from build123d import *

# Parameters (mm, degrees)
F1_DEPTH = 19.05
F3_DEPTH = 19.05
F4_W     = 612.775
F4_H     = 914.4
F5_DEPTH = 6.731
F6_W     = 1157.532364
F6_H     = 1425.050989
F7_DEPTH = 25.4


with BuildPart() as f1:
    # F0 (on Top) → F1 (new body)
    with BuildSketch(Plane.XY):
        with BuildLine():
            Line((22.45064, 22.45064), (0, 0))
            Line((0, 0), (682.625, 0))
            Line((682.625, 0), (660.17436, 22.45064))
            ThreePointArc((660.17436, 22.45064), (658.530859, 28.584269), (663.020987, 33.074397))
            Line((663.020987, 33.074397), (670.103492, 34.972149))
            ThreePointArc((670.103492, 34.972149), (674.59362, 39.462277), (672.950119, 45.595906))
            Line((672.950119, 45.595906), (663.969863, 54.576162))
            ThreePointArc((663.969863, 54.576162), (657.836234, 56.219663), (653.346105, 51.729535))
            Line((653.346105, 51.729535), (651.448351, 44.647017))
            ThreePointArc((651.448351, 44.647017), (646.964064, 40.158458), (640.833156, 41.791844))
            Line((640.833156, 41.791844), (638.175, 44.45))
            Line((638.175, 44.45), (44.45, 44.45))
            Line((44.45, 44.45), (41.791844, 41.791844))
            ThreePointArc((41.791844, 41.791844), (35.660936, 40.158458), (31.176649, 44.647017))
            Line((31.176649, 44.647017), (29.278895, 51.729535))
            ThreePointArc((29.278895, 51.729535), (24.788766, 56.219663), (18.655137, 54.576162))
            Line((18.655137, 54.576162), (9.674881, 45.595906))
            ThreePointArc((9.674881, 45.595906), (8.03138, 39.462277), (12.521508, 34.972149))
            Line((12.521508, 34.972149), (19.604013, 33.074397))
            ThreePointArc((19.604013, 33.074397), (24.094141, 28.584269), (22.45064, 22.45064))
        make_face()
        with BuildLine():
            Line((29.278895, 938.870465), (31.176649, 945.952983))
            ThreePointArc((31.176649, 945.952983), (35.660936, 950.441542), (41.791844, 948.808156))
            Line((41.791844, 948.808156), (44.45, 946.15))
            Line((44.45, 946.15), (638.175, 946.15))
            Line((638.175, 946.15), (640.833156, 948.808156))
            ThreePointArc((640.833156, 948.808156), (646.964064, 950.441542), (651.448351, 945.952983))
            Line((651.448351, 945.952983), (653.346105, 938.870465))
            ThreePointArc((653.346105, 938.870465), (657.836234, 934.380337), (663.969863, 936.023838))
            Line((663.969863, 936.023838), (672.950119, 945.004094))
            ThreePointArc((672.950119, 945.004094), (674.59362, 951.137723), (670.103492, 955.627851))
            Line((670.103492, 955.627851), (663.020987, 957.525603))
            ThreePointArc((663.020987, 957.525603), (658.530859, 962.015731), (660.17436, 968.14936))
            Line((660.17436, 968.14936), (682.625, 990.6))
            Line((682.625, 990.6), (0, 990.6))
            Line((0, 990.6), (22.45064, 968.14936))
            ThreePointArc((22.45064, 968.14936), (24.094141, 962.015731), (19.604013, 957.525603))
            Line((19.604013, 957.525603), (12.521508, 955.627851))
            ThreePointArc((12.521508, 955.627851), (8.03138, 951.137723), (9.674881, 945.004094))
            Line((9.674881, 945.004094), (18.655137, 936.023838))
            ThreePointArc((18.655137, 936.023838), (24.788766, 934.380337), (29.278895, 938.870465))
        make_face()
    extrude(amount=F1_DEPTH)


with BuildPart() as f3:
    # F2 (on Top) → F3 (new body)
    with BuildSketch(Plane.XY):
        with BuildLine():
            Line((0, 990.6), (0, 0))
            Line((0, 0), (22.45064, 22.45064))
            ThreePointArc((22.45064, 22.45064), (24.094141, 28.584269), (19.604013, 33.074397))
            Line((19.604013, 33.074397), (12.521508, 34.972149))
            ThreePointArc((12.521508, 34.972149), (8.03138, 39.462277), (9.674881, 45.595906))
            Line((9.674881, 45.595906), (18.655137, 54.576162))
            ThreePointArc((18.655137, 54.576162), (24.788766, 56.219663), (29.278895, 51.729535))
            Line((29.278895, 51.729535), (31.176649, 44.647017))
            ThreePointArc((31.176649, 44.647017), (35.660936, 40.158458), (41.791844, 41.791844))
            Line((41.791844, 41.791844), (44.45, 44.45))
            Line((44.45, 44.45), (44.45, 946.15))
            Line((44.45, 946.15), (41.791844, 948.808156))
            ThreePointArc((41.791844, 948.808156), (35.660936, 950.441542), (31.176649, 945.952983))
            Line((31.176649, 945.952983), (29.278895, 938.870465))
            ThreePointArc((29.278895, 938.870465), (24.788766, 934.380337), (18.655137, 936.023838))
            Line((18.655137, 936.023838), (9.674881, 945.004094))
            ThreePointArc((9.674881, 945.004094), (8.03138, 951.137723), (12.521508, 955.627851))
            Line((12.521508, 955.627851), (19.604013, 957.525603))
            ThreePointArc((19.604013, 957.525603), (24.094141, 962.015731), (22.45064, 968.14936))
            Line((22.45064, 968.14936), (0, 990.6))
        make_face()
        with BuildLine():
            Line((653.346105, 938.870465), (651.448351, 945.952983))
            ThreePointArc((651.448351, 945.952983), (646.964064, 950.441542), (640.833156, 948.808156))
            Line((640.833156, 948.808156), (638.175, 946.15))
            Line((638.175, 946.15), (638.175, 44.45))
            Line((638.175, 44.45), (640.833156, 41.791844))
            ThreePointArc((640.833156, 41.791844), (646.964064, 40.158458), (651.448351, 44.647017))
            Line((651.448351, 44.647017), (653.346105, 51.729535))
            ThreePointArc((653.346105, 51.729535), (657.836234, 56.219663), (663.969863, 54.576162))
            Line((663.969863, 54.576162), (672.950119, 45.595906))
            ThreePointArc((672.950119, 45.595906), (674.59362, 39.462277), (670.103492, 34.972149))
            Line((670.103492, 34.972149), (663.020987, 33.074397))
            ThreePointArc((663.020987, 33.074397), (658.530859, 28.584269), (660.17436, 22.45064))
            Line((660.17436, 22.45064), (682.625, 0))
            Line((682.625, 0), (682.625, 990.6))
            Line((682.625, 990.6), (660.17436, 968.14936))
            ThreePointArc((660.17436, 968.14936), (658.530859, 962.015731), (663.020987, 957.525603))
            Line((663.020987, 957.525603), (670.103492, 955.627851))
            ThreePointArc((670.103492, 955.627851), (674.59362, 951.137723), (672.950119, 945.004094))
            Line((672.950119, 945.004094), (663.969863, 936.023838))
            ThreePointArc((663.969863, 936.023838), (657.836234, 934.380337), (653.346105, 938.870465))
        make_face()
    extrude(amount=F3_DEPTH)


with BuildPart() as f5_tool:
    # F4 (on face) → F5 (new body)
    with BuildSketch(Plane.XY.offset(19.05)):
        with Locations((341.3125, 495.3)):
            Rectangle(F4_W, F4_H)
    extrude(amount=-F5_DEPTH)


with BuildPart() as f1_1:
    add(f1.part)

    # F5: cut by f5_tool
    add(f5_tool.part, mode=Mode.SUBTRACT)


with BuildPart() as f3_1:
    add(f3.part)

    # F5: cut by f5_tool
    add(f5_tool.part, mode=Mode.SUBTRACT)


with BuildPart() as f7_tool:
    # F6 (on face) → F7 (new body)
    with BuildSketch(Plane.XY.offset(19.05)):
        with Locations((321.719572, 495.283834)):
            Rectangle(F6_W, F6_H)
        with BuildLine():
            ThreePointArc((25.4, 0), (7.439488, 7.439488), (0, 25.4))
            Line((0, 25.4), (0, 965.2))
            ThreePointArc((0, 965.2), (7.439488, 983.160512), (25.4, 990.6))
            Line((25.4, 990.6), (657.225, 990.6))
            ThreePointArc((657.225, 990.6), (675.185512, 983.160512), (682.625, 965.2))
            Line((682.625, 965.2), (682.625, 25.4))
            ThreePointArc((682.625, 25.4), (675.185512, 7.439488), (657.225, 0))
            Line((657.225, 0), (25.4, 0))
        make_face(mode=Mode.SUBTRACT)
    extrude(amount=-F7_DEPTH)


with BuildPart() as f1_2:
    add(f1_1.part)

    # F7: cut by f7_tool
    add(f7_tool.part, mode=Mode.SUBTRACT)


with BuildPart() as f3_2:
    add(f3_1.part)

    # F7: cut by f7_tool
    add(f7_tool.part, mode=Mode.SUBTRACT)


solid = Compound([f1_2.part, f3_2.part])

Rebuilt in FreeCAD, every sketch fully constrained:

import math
import FreeCAD as App
import Part
import Sketcher
Q = App.Units.Quantity


def add_polygon(sketch, points):
    """Adds a closed chain of lines whose ends are joined by coincident constraints."""
    first, n = sketch.GeometryCount, len(points)
    for a, b in zip(points, points[1:] + points[:1]):
        sketch.addGeometry(Part.LineSegment(App.Vector(*a, 0), App.Vector(*b, 0)), False)
    for i in range(n):
        sketch.addConstraint(Sketcher.Constraint("Coincident", first + i, 2, first + (i + 1) % n, 1))

doc = App.newDocument("Part")
body = doc.addObject("PartDesign::Body", "Body")
body.AllowCompound = True

# Sketch on XY plane
sketch1 = doc.addObject("Sketcher::SketchObject", "Sketch")
body.addObject(sketch1)
sketch1.AttachmentSupport = (doc.XY_Plane, [""])
sketch1.MapMode = "FlatFace"
sketch1.addGeometry([
    Part.LineSegment(App.Vector(22.5, 22.5, 0), App.Vector(0, 0, 0)),  # 0
    Part.LineSegment(App.Vector(0, 0, 0), App.Vector(682.6, 0, 0)),  # 1
    Part.LineSegment(App.Vector(682.6, 0, 0), App.Vector(660.2, 22.5, 0)),  # 2
    Part.ArcOfCircle(Part.Circle(App.Vector(664.7, 26.9, 0), App.Vector(0, 0, 1), 6.3), math.radians(105), math.radians(225)),  # 3
    Part.LineSegment(App.Vector(663, 33.1, 0), App.Vector(670.1, 35, 0)),  # 4
    Part.ArcOfCircle(Part.Circle(App.Vector(668.5, 41.1, 0), App.Vector(0, 0, 1), 6.3), math.radians(-75), math.radians(45)),  # 5
    Part.LineSegment(App.Vector(673, 45.6, 0), App.Vector(664, 54.6, 0)),  # 6
    Part.ArcOfCircle(Part.Circle(App.Vector(659.5, 50.1, 0), App.Vector(0, 0, 1), 6.4), math.radians(45), math.radians(165)),  # 7
    Part.LineSegment(App.Vector(653.3, 51.7, 0), App.Vector(651.4, 44.6, 0)),  # 8
    Part.ArcOfCircle(Part.Circle(App.Vector(645.3, 46.3, 0), App.Vector(0, 0, 1), 6.4), math.radians(-135), math.radians(-15)),  # 9
    Part.LineSegment(App.Vector(640.8, 41.8, 0), App.Vector(638.2, 44.5, 0)),  # 10
    Part.LineSegment(App.Vector(638.2, 44.5, 0), App.Vector(44.5, 44.5, 0)),  # 11
    Part.LineSegment(App.Vector(44.5, 44.5, 0), App.Vector(41.8, 41.8, 0)),  # 12
    Part.ArcOfCircle(Part.Circle(App.Vector(37.3, 46.3, 0), App.Vector(0, 0, 1), 6.4), math.radians(-165), math.radians(-45)),  # 13
    Part.LineSegment(App.Vector(31.2, 44.6, 0), App.Vector(29.3, 51.7, 0)),  # 14
    Part.ArcOfCircle(Part.Circle(App.Vector(23.1, 50.1, 0), App.Vector(0, 0, 1), 6.4), math.radians(15), math.radians(135)),  # 15
    Part.LineSegment(App.Vector(18.7, 54.6, 0), App.Vector(9.7, 45.6, 0)),  # 16
    Part.ArcOfCircle(Part.Circle(App.Vector(14.2, 41.1, 0), App.Vector(0, 0, 1), 6.3), math.radians(135), math.radians(255)),  # 17
    Part.LineSegment(App.Vector(12.5, 35, 0), App.Vector(19.6, 33.1, 0)),  # 18
    Part.ArcOfCircle(Part.Circle(App.Vector(18, 26.9, 0), App.Vector(0, 0, 1), 6.3), math.radians(-45), math.radians(75)),  # 19
    Part.LineSegment(App.Vector(29.3, 938.9, 0), App.Vector(31.2, 946, 0)),  # 20
    Part.ArcOfCircle(Part.Circle(App.Vector(37.3, 944.3, 0), App.Vector(0, 0, 1), 6.4), math.radians(45), math.radians(165)),  # 21
    Part.LineSegment(App.Vector(41.8, 948.8, 0), App.Vector(44.5, 946.1, 0)),  # 22
    Part.LineSegment(App.Vector(44.5, 946.1, 0), App.Vector(638.2, 946.1, 0)),  # 23
    Part.LineSegment(App.Vector(638.2, 946.1, 0), App.Vector(640.8, 948.8, 0)),  # 24
    Part.ArcOfCircle(Part.Circle(App.Vector(645.3, 944.3, 0), App.Vector(0, 0, 1), 6.4), math.radians(15), math.radians(135)),  # 25
    Part.LineSegment(App.Vector(651.4, 946, 0), App.Vector(653.3, 938.9, 0)),  # 26
    Part.ArcOfCircle(Part.Circle(App.Vector(659.5, 940.5, 0), App.Vector(0, 0, 1), 6.4), math.radians(-165), math.radians(-45)),  # 27
    Part.LineSegment(App.Vector(664, 936, 0), App.Vector(673, 945, 0)),  # 28
    Part.ArcOfCircle(Part.Circle(App.Vector(668.5, 949.5, 0), App.Vector(0, 0, 1), 6.3), math.radians(-45), math.radians(75)),  # 29
    Part.LineSegment(App.Vector(670.1, 955.6, 0), App.Vector(663, 957.5, 0)),  # 30
    Part.ArcOfCircle(Part.Circle(App.Vector(664.7, 963.7, 0), App.Vector(0, 0, 1), 6.3), math.radians(135), math.radians(255)),  # 31
    Part.LineSegment(App.Vector(660.2, 968.1, 0), App.Vector(682.6, 990.6, 0)),  # 32
    Part.LineSegment(App.Vector(682.6, 990.6, 0), App.Vector(0, 990.6, 0)),  # 33
    Part.LineSegment(App.Vector(0, 990.6, 0), App.Vector(22.5, 968.1, 0)),  # 34
    Part.ArcOfCircle(Part.Circle(App.Vector(18, 963.7, 0), App.Vector(0, 0, 1), 6.3), math.radians(-75), math.radians(45)),  # 35
    Part.LineSegment(App.Vector(19.6, 957.5, 0), App.Vector(12.5, 955.6, 0)),  # 36
    Part.ArcOfCircle(Part.Circle(App.Vector(14.2, 949.5, 0), App.Vector(0, 0, 1), 6.3), math.radians(105), math.radians(225)),  # 37
    Part.LineSegment(App.Vector(9.7, 945, 0), App.Vector(18.7, 936, 0)),  # 38
    Part.ArcOfCircle(Part.Circle(App.Vector(23.1, 940.5, 0), App.Vector(0, 0, 1), 6.4), math.radians(-135), math.radians(-15)),  # 39
], False)
sketch1.addConstraint([
    Sketcher.Constraint("Coincident", 0, 2, 1, 1),
    Sketcher.Constraint("Coincident", 1, 2, 2, 1),
    Sketcher.Constraint("Tangent", 2, 2, 3, 2),
    Sketcher.Constraint("Tangent", 3, 1, 4, 1),
    Sketcher.Constraint("Tangent", 4, 2, 5, 1),
    Sketcher.Constraint("Tangent", 5, 2, 6, 1),
    Sketcher.Constraint("Tangent", 6, 2, 7, 1),
    Sketcher.Constraint("Tangent", 7, 2, 8, 1),
    Sketcher.Constraint("Tangent", 8, 2, 9, 2),
    Sketcher.Constraint("Coincident", 9, 1, 10, 1),
    Sketcher.Constraint("Coincident", 10, 2, 11, 1),
    Sketcher.Constraint("Coincident", 11, 2, 12, 1),
    Sketcher.Constraint("Coincident", 12, 2, 13, 2),
    Sketcher.Constraint("Tangent", 13, 1, 14, 1),
    Sketcher.Constraint("Tangent", 14, 2, 15, 1),
    Sketcher.Constraint("Tangent", 15, 2, 16, 1),
    Sketcher.Constraint("Tangent", 16, 2, 17, 1),
    Sketcher.Constraint("Tangent", 17, 2, 18, 1),
    Sketcher.Constraint("Tangent", 18, 2, 19, 2),
    Sketcher.Constraint("Tangent", 19, 1, 0, 1),
    Sketcher.Constraint("Tangent", 20, 2, 21, 2),
    Sketcher.Constraint("Coincident", 21, 1, 22, 1),
    Sketcher.Constraint("Coincident", 22, 2, 23, 1),
    Sketcher.Constraint("Coincident", 23, 2, 24, 1),
    Sketcher.Constraint("Coincident", 24, 2, 25, 2),
    Sketcher.Constraint("Tangent", 25, 1, 26, 1),
    Sketcher.Constraint("Tangent", 26, 2, 27, 1),
    Sketcher.Constraint("Tangent", 27, 2, 28, 1),
    Sketcher.Constraint("Tangent", 28, 2, 29, 1),
    Sketcher.Constraint("Tangent", 29, 2, 30, 1),
    Sketcher.Constraint("Tangent", 30, 2, 31, 2),
    Sketcher.Constraint("Tangent", 31, 1, 32, 1),
    Sketcher.Constraint("Coincident", 32, 2, 33, 1),
    Sketcher.Constraint("Coincident", 33, 2, 34, 1),
    Sketcher.Constraint("Tangent", 34, 2, 35, 2),
    Sketcher.Constraint("Tangent", 35, 1, 36, 1),
    Sketcher.Constraint("Tangent", 36, 2, 37, 1),
    Sketcher.Constraint("Tangent", 37, 2, 38, 1),
    Sketcher.Constraint("Tangent", 38, 2, 39, 1),
    Sketcher.Constraint("Tangent", 39, 2, 20, 1),
    Sketcher.Constraint("Horizontal", 1),
    Sketcher.Constraint("Horizontal", 11),
    Sketcher.Constraint("Horizontal", 23),
    Sketcher.Constraint("Horizontal", 33),
    Sketcher.Constraint("Coincident", 0, 2, -1, 1),
    Sketcher.Constraint("Equal", 3, 5),
    Sketcher.Constraint("Equal", 5, 7),
    Sketcher.Constraint("Equal", 7, 9),
    Sketcher.Constraint("Equal", 9, 13),
    Sketcher.Constraint("Equal", 13, 15),
    Sketcher.Constraint("Equal", 15, 17),
    Sketcher.Constraint("Equal", 17, 19),
    Sketcher.Constraint("Equal", 19, 21),
    Sketcher.Constraint("Equal", 21, 25),
    Sketcher.Constraint("Equal", 25, 27),
    Sketcher.Constraint("Equal", 27, 29),
    Sketcher.Constraint("Equal", 29, 31),
    Sketcher.Constraint("Equal", 31, 35),
    Sketcher.Constraint("Equal", 35, 37),
    Sketcher.Constraint("Equal", 37, 39),
    Sketcher.Constraint("PointOnObject", 33, 2, -2),
    Sketcher.Constraint("Perpendicular", 0, 2),
    Sketcher.Constraint("Parallel", 2, 6),
    Sketcher.Constraint("Parallel", 6, 10),
    Sketcher.Constraint("Perpendicular", 10, 12),
    Sketcher.Constraint("Perpendicular", 4, 14),
    Sketcher.Constraint("Parallel", 12, 16),
    Sketcher.Constraint("Perpendicular", 8, 18),
    Sketcher.Constraint("Perpendicular", 18, 20),
    Sketcher.Constraint("Perpendicular", 16, 22),
    Sketcher.Constraint("Perpendicular", 22, 24),
    Sketcher.Constraint("Parallel", 14, 26),
    Sketcher.Constraint("Parallel", 24, 28),
    Sketcher.Constraint("Perpendicular", 20, 30),
    Sketcher.Constraint("Parallel", 28, 32),
    Sketcher.Constraint("Perpendicular", 32, 34),
    Sketcher.Constraint("Perpendicular", 26, 36),
    Sketcher.Constraint("Parallel", 34, 38),
    Sketcher.Constraint("Horizontal", 9, 3, 13, 3),
    Sketcher.Constraint("Horizontal", 7, 3, 15, 3),
    Sketcher.Constraint("Horizontal", 5, 3, 17, 3),
    Sketcher.Constraint("Horizontal", 3, 3, 19, 3),
    Sketcher.Constraint("Horizontal", 21, 3, 25, 3),
    Sketcher.Constraint("Horizontal", 31, 3, 35, 3),
    Sketcher.Constraint("Horizontal", 29, 3, 37, 3),
    Sketcher.Constraint("Horizontal", 27, 3, 39, 3),
    Sketcher.Constraint("Horizontal", 9, 1, 12, 2),
    Sketcher.Constraint("Horizontal", 8, 2, 13, 1),
    Sketcher.Constraint("Horizontal", 6, 2, 15, 2),
    Sketcher.Constraint("Horizontal", 21, 1, 24, 2),
    Sketcher.Constraint("Vertical", 13, 3, 21, 3),
    Sketcher.Constraint("Vertical", 9, 3, 25, 3),
    Sketcher.Constraint("Vertical", 7, 3, 27, 3),
    Sketcher.Constraint("Vertical", 5, 3, 29, 3),
    Sketcher.Constraint("Vertical", 3, 3, 31, 3),
    Sketcher.Constraint("Vertical", 12, 2, 21, 1),
    Sketcher.Constraint("Vertical", 11, 2, 22, 2),
    Sketcher.Constraint("Radius", 3, Q("0.25 in")),
    Sketcher.Constraint("DistanceY", -1, 1, 32, 2, Q("39 in")),
    Sketcher.Constraint("Angle", 4, Q("15.000004 deg")),
    Sketcher.Constraint("Distance", 6, Q("0.5 in")),
    Sketcher.Constraint("Distance", 0, Q("1.25 in")),
    Sketcher.Constraint("DistanceX", 1, 1, 1, 2, Q("26.875 in")),
    Sketcher.Constraint("DistanceX", 11, 2, 11, 1, Q("23.375 in")),
    Sketcher.Constraint("DistanceY", -1, 1, 10, 2, Q("1.75 in")),
    Sketcher.Constraint("Distance", 10, Q("0.148 in")),
    Sketcher.Constraint("DistanceY", 7, 3, 31, 3, Q("913.573199 mm")),
])
pad1 = doc.addObject("PartDesign::Pad", "Pad")
body.addObject(pad1)
pad1.Profile = sketch1
pad1.Length = Q("0.75 in")
body2 = doc.addObject("PartDesign::Body", "Body001")
body2.AllowCompound = True

# Sketch on XY plane
sketch2 = doc.addObject("Sketcher::SketchObject", "Sketch001")
body2.addObject(sketch2)
sketch2.AttachmentSupport = (doc.getObject("XY_Plane001"), [""])
sketch2.MapMode = "FlatFace"
sketch2.addGeometry([
    Part.LineSegment(App.Vector(0, 990.6, 0), App.Vector(0, 0, 0)),  # 0
    Part.LineSegment(App.Vector(0, 0, 0), App.Vector(22.5, 22.5, 0)),  # 1
    Part.ArcOfCircle(Part.Circle(App.Vector(18, 26.9, 0), App.Vector(0, 0, 1), 6.3), math.radians(-45), math.radians(75)),  # 2
    Part.LineSegment(App.Vector(19.6, 33.1, 0), App.Vector(12.5, 35, 0)),  # 3
    Part.ArcOfCircle(Part.Circle(App.Vector(14.2, 41.1, 0), App.Vector(0, 0, 1), 6.3), math.radians(135), math.radians(255)),  # 4
    Part.LineSegment(App.Vector(9.7, 45.6, 0), App.Vector(18.7, 54.6, 0)),  # 5
    Part.ArcOfCircle(Part.Circle(App.Vector(23.1, 50.1, 0), App.Vector(0, 0, 1), 6.4), math.radians(15), math.radians(135)),  # 6
    Part.LineSegment(App.Vector(29.3, 51.7, 0), App.Vector(31.2, 44.6, 0)),  # 7
    Part.ArcOfCircle(Part.Circle(App.Vector(37.3, 46.3, 0), App.Vector(0, 0, 1), 6.4), math.radians(-165), math.radians(-45)),  # 8
    Part.LineSegment(App.Vector(41.8, 41.8, 0), App.Vector(44.5, 44.5, 0)),  # 9
    Part.LineSegment(App.Vector(44.5, 44.5, 0), App.Vector(44.5, 946.1, 0)),  # 10
    Part.LineSegment(App.Vector(44.5, 946.1, 0), App.Vector(41.8, 948.8, 0)),  # 11
    Part.ArcOfCircle(Part.Circle(App.Vector(37.3, 944.3, 0), App.Vector(0, 0, 1), 6.4), math.radians(45), math.radians(165)),  # 12
    Part.LineSegment(App.Vector(31.2, 946, 0), App.Vector(29.3, 938.9, 0)),  # 13
    Part.ArcOfCircle(Part.Circle(App.Vector(23.1, 940.5, 0), App.Vector(0, 0, 1), 6.4), math.radians(-135), math.radians(-15)),  # 14
    Part.LineSegment(App.Vector(18.7, 936, 0), App.Vector(9.7, 945, 0)),  # 15
    Part.ArcOfCircle(Part.Circle(App.Vector(14.2, 949.5, 0), App.Vector(0, 0, 1), 6.3), math.radians(105), math.radians(225)),  # 16
    Part.LineSegment(App.Vector(12.5, 955.6, 0), App.Vector(19.6, 957.5, 0)),  # 17
    Part.ArcOfCircle(Part.Circle(App.Vector(18, 963.7, 0), App.Vector(0, 0, 1), 6.3), math.radians(-75), math.radians(45)),  # 18
    Part.LineSegment(App.Vector(22.5, 968.1, 0), App.Vector(0, 990.6, 0)),  # 19
    Part.LineSegment(App.Vector(653.3, 938.9, 0), App.Vector(651.4, 946, 0)),  # 20
    Part.ArcOfCircle(Part.Circle(App.Vector(645.3, 944.3, 0), App.Vector(0, 0, 1), 6.4), math.radians(15), math.radians(135)),  # 21
    Part.LineSegment(App.Vector(640.8, 948.8, 0), App.Vector(638.2, 946.1, 0)),  # 22
    Part.LineSegment(App.Vector(638.2, 946.1, 0), App.Vector(638.2, 44.5, 0)),  # 23
    Part.LineSegment(App.Vector(638.2, 44.5, 0), App.Vector(640.8, 41.8, 0)),  # 24
    Part.ArcOfCircle(Part.Circle(App.Vector(645.3, 46.3, 0), App.Vector(0, 0, 1), 6.4), math.radians(-135), math.radians(-15)),  # 25
    Part.LineSegment(App.Vector(651.4, 44.6, 0), App.Vector(653.3, 51.7, 0)),  # 26
    Part.ArcOfCircle(Part.Circle(App.Vector(659.5, 50.1, 0), App.Vector(0, 0, 1), 6.4), math.radians(45), math.radians(165)),  # 27
    Part.LineSegment(App.Vector(664, 54.6, 0), App.Vector(673, 45.6, 0)),  # 28
    Part.ArcOfCircle(Part.Circle(App.Vector(668.5, 41.1, 0), App.Vector(0, 0, 1), 6.3), math.radians(-75), math.radians(45)),  # 29
    Part.LineSegment(App.Vector(670.1, 35, 0), App.Vector(663, 33.1, 0)),  # 30
    Part.ArcOfCircle(Part.Circle(App.Vector(664.7, 26.9, 0), App.Vector(0, 0, 1), 6.3), math.radians(105), math.radians(225)),  # 31
    Part.LineSegment(App.Vector(660.2, 22.5, 0), App.Vector(682.6, 0, 0)),  # 32
    Part.LineSegment(App.Vector(682.6, 0, 0), App.Vector(682.6, 990.6, 0)),  # 33
    Part.LineSegment(App.Vector(682.6, 990.6, 0), App.Vector(660.2, 968.1, 0)),  # 34
    Part.ArcOfCircle(Part.Circle(App.Vector(664.7, 963.7, 0), App.Vector(0, 0, 1), 6.3), math.radians(135), math.radians(255)),  # 35
    Part.LineSegment(App.Vector(663, 957.5, 0), App.Vector(670.1, 955.6, 0)),  # 36
    Part.ArcOfCircle(Part.Circle(App.Vector(668.5, 949.5, 0), App.Vector(0, 0, 1), 6.3), math.radians(-45), math.radians(75)),  # 37
    Part.LineSegment(App.Vector(673, 945, 0), App.Vector(664, 936, 0)),  # 38
    Part.ArcOfCircle(Part.Circle(App.Vector(659.5, 940.5, 0), App.Vector(0, 0, 1), 6.4), math.radians(-165), math.radians(-45)),  # 39
], False)
sketch2.addConstraint([
    Sketcher.Constraint("Coincident", 0, 2, 1, 1),
    Sketcher.Constraint("Tangent", 1, 2, 2, 1),
    Sketcher.Constraint("Tangent", 2, 2, 3, 1),
    Sketcher.Constraint("Tangent", 3, 2, 4, 2),
    Sketcher.Constraint("Tangent", 4, 1, 5, 1),
    Sketcher.Constraint("Tangent", 5, 2, 6, 2),
    Sketcher.Constraint("Tangent", 6, 1, 7, 1),
    Sketcher.Constraint("Tangent", 7, 2, 8, 1),
    Sketcher.Constraint("Coincident", 8, 2, 9, 1),
    Sketcher.Constraint("Coincident", 9, 2, 10, 1),
    Sketcher.Constraint("Coincident", 10, 2, 11, 1),
    Sketcher.Constraint("Coincident", 11, 2, 12, 1),
    Sketcher.Constraint("Tangent", 12, 2, 13, 1),
    Sketcher.Constraint("Tangent", 13, 2, 14, 2),
    Sketcher.Constraint("Tangent", 14, 1, 15, 1),
    Sketcher.Constraint("Tangent", 15, 2, 16, 2),
    Sketcher.Constraint("Tangent", 16, 1, 17, 1),
    Sketcher.Constraint("Tangent", 17, 2, 18, 1),
    Sketcher.Constraint("Tangent", 18, 2, 19, 1),
    Sketcher.Constraint("Coincident", 19, 2, 0, 1),
    Sketcher.Constraint("Tangent", 20, 2, 21, 1),
    Sketcher.Constraint("Coincident", 21, 2, 22, 1),
    Sketcher.Constraint("Coincident", 22, 2, 23, 1),
    Sketcher.Constraint("Coincident", 23, 2, 24, 1),
    Sketcher.Constraint("Coincident", 24, 2, 25, 1),
    Sketcher.Constraint("Tangent", 25, 2, 26, 1),
    Sketcher.Constraint("Tangent", 26, 2, 27, 2),
    Sketcher.Constraint("Tangent", 27, 1, 28, 1),
    Sketcher.Constraint("Tangent", 28, 2, 29, 2),
    Sketcher.Constraint("Tangent", 29, 1, 30, 1),
    Sketcher.Constraint("Tangent", 30, 2, 31, 1),
    Sketcher.Constraint("Tangent", 31, 2, 32, 1),
    Sketcher.Constraint("Coincident", 32, 2, 33, 1),
    Sketcher.Constraint("Coincident", 33, 2, 34, 1),
    Sketcher.Constraint("Tangent", 34, 2, 35, 1),
    Sketcher.Constraint("Tangent", 35, 2, 36, 1),
    Sketcher.Constraint("Tangent", 36, 2, 37, 2),
    Sketcher.Constraint("Tangent", 37, 1, 38, 1),
    Sketcher.Constraint("Tangent", 38, 2, 39, 2),
    Sketcher.Constraint("Tangent", 39, 1, 20, 1),
    Sketcher.Constraint("Vertical", 0),
    Sketcher.Constraint("Vertical", 10),
    Sketcher.Constraint("Vertical", 23),
    Sketcher.Constraint("Vertical", 33),
    Sketcher.Constraint("Coincident", 0, 2, -1, 1),
    Sketcher.Constraint("Equal", 2, 4),
    Sketcher.Constraint("Equal", 4, 6),
    Sketcher.Constraint("Equal", 6, 8),
    Sketcher.Constraint("Equal", 8, 12),
    Sketcher.Constraint("Equal", 12, 14),
    Sketcher.Constraint("Equal", 14, 16),
    Sketcher.Constraint("Equal", 16, 18),
    Sketcher.Constraint("Equal", 18, 21),
    Sketcher.Constraint("Equal", 21, 25),
    Sketcher.Constraint("Equal", 25, 27),
    Sketcher.Constraint("Equal", 27, 29),
    Sketcher.Constraint("Equal", 29, 31),
    Sketcher.Constraint("Equal", 31, 35),
    Sketcher.Constraint("Equal", 35, 37),
    Sketcher.Constraint("Equal", 37, 39),
    Sketcher.Constraint("PointOnObject", 32, 2, -1),
    Sketcher.Constraint("Parallel", 1, 5),
    Sketcher.Constraint("Parallel", 5, 9),
    Sketcher.Constraint("Perpendicular", 9, 11),
    Sketcher.Constraint("Perpendicular", 3, 13),
    Sketcher.Constraint("Parallel", 11, 15),
    Sketcher.Constraint("Perpendicular", 7, 17),
    Sketcher.Constraint("Parallel", 15, 19),
    Sketcher.Constraint("Perpendicular", 17, 20),
    Sketcher.Constraint("Perpendicular", 19, 22),
    Sketcher.Constraint("Perpendicular", 22, 24),
    Sketcher.Constraint("Parallel", 13, 26),
    Sketcher.Constraint("Parallel", 24, 28),
    Sketcher.Constraint("Perpendicular", 20, 30),
    Sketcher.Constraint("Parallel", 28, 32),
    Sketcher.Constraint("Perpendicular", 32, 34),
    Sketcher.Constraint("Perpendicular", 26, 36),
    Sketcher.Constraint("Parallel", 34, 38),
    Sketcher.Constraint("Horizontal", 12, 3, 21, 3),
    Sketcher.Constraint("Horizontal", 8, 3, 25, 3),
    Sketcher.Constraint("Horizontal", 6, 3, 27, 3),
    Sketcher.Constraint("Horizontal", 4, 3, 29, 3),
    Sketcher.Constraint("Horizontal", 2, 3, 31, 3),
    Sketcher.Constraint("Horizontal", 18, 3, 35, 3),
    Sketcher.Constraint("Horizontal", 16, 3, 37, 3),
    Sketcher.Constraint("Horizontal", 14, 3, 39, 3),
    Sketcher.Constraint("Horizontal", 12, 2, 20, 2),
    Sketcher.Constraint("Horizontal", 11, 2, 21, 2),
    Sketcher.Constraint("Horizontal", 10, 2, 22, 2),
    Sketcher.Constraint("Horizontal", 9, 2, 23, 2),
    Sketcher.Constraint("Horizontal", 8, 2, 24, 2),
    Sketcher.Constraint("Horizontal", 5, 2, 27, 1),
    Sketcher.Constraint("Vertical", 8, 3, 12, 3),
    Sketcher.Constraint("Vertical", 6, 3, 14, 3),
    Sketcher.Constraint("Vertical", 4, 3, 16, 3),
    Sketcher.Constraint("Vertical", 2, 3, 18, 3),
    Sketcher.Constraint("Vertical", 8, 2, 11, 2),
    Sketcher.Constraint("DistanceY", 0, 2, 0, 1, Q("39 in")),
    Sketcher.Constraint("Radius", 2, Q("0.25 in")),
    Sketcher.Constraint("DistanceY", 10, 1, 10, 2, Q("35.5 in")),
    Sketcher.Constraint("Angle", 3, Q("164.999996 deg")),
    Sketcher.Constraint("Distance", 5, Q("0.5 in")),
    Sketcher.Constraint("Distance", 1, Q("1.25 in")),
    Sketcher.Constraint("DistanceX", -1, 1, 9, 2, Q("1.75 in")),
    Sketcher.Constraint("Distance", 9, Q("0.148 in")),
    Sketcher.Constraint("DistanceX", -1, 1, 22, 2, Q("25.125 in")),
    Sketcher.Constraint("DistanceY", 2, 3, 14, 3, Q("913.573199 mm")),
])
pad2 = doc.addObject("PartDesign::Pad", "Pad001")
body2.addObject(pad2)
pad2.Profile = sketch2
pad2.Length = Q("0.75 in")
body3 = doc.addObject("PartDesign::Body", "Body002")

# Sketch on XY plane
sketch3 = doc.addObject("Sketcher::SketchObject", "Sketch002")
body3.addObject(sketch3)
sketch3.AttachmentSupport = (doc.getObject("XY_Plane002"), [""])
sketch3.MapMode = "FlatFace"
sketch3.AttachmentOffset = App.Placement(App.Vector(0, 0, 0.75 * 25.4), App.Rotation())
add_polygon(sketch3, [(35, 952), (35, 38), (648, 38), (648, 952)])  # lines 0-3
sketch3.addConstraint([
    Sketcher.Constraint("Vertical", 0),
    Sketcher.Constraint("Horizontal", 1),
    Sketcher.Constraint("Vertical", 2),
    Sketcher.Constraint("Horizontal", 3),
    Sketcher.Constraint("DistanceY", 0, 2, 0, 1, Q("36 in")),
    Sketcher.Constraint("DistanceY", -1, 1, 0, 2, Q("1.5 in")),
    Sketcher.Constraint("DistanceX", -1, 1, 1, 2, Q("25.5 in")),
    Sketcher.Constraint("DistanceX", 1, 1, 1, 2, Q("24.125 in")),
])
pad3 = doc.addObject("PartDesign::Pad", "Pad002")
body3.addObject(pad3)
pad3.Profile = sketch3
pad3.Length = Q("0.265 in")
pad3.Reversed = True
body.AllowCompound = True
doc.recompute()

body4 = doc.addObject("PartDesign::Body", "Body003")
body4.BaseFeature = body3
boolean = doc.addObject("PartDesign::Boolean", "Boolean")
body.addObject(boolean)
boolean.Type = "Cut"
boolean.addObjects([body4])
doc.recompute()
body2.AllowCompound = True
doc.recompute()

boolean2 = doc.addObject("PartDesign::Boolean", "Boolean001")
body2.addObject(boolean2)
boolean2.Type = "Cut"
boolean2.addObjects([body3])
body5 = doc.addObject("PartDesign::Body", "Body004")

# Sketch on XY plane
sketch4 = doc.addObject("Sketcher::SketchObject", "Sketch003")
body5.addObject(sketch4)
sketch4.AttachmentSupport = (doc.getObject("XY_Plane004"), [""])
sketch4.MapMode = "FlatFace"
sketch4.AttachmentOffset = App.Placement(App.Vector(0, 0, 0.75 * 25.4), App.Rotation())
add_polygon(sketch4, [(-257, 1208), (-257, -217), (900, -217), (900, 1208)])  # lines 0-3
sketch4.addGeometry(Part.LineSegment(App.Vector(657, 0, 0), App.Vector(25, 0, 0)), False)  # 4
sketch4.addGeometry(Part.ArcOfCircle(Part.Circle(App.Vector(25, 25, 0), App.Vector(0, 0, 1), 25), math.radians(-180), math.radians(-90)), False)  # 5
sketch4.addGeometry(Part.LineSegment(App.Vector(0, 25, 0), App.Vector(0, 965, 0)), False)  # 6
sketch4.addGeometry(Part.ArcOfCircle(Part.Circle(App.Vector(25, 965, 0), App.Vector(0, 0, 1), 25), math.radians(90), math.radians(180)), False)  # 7
sketch4.addGeometry(Part.LineSegment(App.Vector(25, 991, 0), App.Vector(657, 991, 0)), False)  # 8
sketch4.addGeometry(Part.ArcOfCircle(Part.Circle(App.Vector(657, 965, 0), App.Vector(0, 0, 1), 25), math.radians(0), math.radians(90)), False)  # 9
sketch4.addGeometry(Part.LineSegment(App.Vector(683, 965, 0), App.Vector(683, 25, 0)), False)  # 10
sketch4.addGeometry(Part.ArcOfCircle(Part.Circle(App.Vector(657, 25, 0), App.Vector(0, 0, 1), 25), math.radians(-90), math.radians(0)), False)  # 11
sketch4.addConstraint([
    Sketcher.Constraint("Tangent", 4, 2, 5, 2),
    Sketcher.Constraint("Tangent", 5, 1, 6, 1),
    Sketcher.Constraint("Tangent", 6, 2, 7, 2),
    Sketcher.Constraint("Tangent", 7, 1, 8, 1),
    Sketcher.Constraint("Tangent", 8, 2, 9, 2),
    Sketcher.Constraint("Tangent", 9, 1, 10, 1),
    Sketcher.Constraint("Tangent", 10, 2, 11, 2),
    Sketcher.Constraint("Tangent", 11, 1, 4, 1),
    Sketcher.Constraint("Vertical", 0),
    Sketcher.Constraint("Horizontal", 1),
    Sketcher.Constraint("Vertical", 2),
    Sketcher.Constraint("Horizontal", 3),
    Sketcher.Constraint("Horizontal", 4),
    Sketcher.Constraint("Vertical", 6),
    Sketcher.Constraint("Horizontal", 8),
    Sketcher.Constraint("Vertical", 10),
    Sketcher.Constraint("Equal", 5, 7),
    Sketcher.Constraint("Equal", 7, 9),
    Sketcher.Constraint("Equal", 9, 11),
    Sketcher.Constraint("PointOnObject", 4, 2, -1),
    Sketcher.Constraint("PointOnObject", 5, 1, -2),
    Sketcher.Constraint("Radius", 5, Q("1 in")),
    Sketcher.Constraint("DistanceY", 6, 1, 6, 2, Q("37 in")),
    Sketcher.Constraint("DistanceX", 4, 2, 4, 1, Q("24.875 in")),
    Sketcher.Constraint("DistanceY", 0, 2, 0, 1, Q("1425.050989 mm")),
    Sketcher.Constraint("DistanceX", 1, 1, 1, 2, Q("1157.532364 mm")),
    Sketcher.Constraint("DistanceX", 0, 2, -1, 1, Q("257.04661 mm")),
    Sketcher.Constraint("DistanceY", 0, 2, -1, 1, Q("217.24166 mm")),
])
pad4 = doc.addObject("PartDesign::Pad", "Pad003")
body5.addObject(pad4)
pad4.Profile = sketch4
pad4.Length = Q("1 in")
pad4.Reversed = True
body.AllowCompound = True
doc.recompute()

body6 = doc.addObject("PartDesign::Body", "Body005")
body6.BaseFeature = body5
boolean3 = doc.addObject("PartDesign::Boolean", "Boolean002")
body.addObject(boolean3)
boolean3.Type = "Cut"
boolean3.addObjects([body6])
doc.recompute()
body2.AllowCompound = True
doc.recompute()

boolean4 = doc.addObject("PartDesign::Boolean", "Boolean003")
body2.addObject(boolean4)
boolean4.Type = "Cut"
boolean4.addObjects([body5])

doc.recompute()
